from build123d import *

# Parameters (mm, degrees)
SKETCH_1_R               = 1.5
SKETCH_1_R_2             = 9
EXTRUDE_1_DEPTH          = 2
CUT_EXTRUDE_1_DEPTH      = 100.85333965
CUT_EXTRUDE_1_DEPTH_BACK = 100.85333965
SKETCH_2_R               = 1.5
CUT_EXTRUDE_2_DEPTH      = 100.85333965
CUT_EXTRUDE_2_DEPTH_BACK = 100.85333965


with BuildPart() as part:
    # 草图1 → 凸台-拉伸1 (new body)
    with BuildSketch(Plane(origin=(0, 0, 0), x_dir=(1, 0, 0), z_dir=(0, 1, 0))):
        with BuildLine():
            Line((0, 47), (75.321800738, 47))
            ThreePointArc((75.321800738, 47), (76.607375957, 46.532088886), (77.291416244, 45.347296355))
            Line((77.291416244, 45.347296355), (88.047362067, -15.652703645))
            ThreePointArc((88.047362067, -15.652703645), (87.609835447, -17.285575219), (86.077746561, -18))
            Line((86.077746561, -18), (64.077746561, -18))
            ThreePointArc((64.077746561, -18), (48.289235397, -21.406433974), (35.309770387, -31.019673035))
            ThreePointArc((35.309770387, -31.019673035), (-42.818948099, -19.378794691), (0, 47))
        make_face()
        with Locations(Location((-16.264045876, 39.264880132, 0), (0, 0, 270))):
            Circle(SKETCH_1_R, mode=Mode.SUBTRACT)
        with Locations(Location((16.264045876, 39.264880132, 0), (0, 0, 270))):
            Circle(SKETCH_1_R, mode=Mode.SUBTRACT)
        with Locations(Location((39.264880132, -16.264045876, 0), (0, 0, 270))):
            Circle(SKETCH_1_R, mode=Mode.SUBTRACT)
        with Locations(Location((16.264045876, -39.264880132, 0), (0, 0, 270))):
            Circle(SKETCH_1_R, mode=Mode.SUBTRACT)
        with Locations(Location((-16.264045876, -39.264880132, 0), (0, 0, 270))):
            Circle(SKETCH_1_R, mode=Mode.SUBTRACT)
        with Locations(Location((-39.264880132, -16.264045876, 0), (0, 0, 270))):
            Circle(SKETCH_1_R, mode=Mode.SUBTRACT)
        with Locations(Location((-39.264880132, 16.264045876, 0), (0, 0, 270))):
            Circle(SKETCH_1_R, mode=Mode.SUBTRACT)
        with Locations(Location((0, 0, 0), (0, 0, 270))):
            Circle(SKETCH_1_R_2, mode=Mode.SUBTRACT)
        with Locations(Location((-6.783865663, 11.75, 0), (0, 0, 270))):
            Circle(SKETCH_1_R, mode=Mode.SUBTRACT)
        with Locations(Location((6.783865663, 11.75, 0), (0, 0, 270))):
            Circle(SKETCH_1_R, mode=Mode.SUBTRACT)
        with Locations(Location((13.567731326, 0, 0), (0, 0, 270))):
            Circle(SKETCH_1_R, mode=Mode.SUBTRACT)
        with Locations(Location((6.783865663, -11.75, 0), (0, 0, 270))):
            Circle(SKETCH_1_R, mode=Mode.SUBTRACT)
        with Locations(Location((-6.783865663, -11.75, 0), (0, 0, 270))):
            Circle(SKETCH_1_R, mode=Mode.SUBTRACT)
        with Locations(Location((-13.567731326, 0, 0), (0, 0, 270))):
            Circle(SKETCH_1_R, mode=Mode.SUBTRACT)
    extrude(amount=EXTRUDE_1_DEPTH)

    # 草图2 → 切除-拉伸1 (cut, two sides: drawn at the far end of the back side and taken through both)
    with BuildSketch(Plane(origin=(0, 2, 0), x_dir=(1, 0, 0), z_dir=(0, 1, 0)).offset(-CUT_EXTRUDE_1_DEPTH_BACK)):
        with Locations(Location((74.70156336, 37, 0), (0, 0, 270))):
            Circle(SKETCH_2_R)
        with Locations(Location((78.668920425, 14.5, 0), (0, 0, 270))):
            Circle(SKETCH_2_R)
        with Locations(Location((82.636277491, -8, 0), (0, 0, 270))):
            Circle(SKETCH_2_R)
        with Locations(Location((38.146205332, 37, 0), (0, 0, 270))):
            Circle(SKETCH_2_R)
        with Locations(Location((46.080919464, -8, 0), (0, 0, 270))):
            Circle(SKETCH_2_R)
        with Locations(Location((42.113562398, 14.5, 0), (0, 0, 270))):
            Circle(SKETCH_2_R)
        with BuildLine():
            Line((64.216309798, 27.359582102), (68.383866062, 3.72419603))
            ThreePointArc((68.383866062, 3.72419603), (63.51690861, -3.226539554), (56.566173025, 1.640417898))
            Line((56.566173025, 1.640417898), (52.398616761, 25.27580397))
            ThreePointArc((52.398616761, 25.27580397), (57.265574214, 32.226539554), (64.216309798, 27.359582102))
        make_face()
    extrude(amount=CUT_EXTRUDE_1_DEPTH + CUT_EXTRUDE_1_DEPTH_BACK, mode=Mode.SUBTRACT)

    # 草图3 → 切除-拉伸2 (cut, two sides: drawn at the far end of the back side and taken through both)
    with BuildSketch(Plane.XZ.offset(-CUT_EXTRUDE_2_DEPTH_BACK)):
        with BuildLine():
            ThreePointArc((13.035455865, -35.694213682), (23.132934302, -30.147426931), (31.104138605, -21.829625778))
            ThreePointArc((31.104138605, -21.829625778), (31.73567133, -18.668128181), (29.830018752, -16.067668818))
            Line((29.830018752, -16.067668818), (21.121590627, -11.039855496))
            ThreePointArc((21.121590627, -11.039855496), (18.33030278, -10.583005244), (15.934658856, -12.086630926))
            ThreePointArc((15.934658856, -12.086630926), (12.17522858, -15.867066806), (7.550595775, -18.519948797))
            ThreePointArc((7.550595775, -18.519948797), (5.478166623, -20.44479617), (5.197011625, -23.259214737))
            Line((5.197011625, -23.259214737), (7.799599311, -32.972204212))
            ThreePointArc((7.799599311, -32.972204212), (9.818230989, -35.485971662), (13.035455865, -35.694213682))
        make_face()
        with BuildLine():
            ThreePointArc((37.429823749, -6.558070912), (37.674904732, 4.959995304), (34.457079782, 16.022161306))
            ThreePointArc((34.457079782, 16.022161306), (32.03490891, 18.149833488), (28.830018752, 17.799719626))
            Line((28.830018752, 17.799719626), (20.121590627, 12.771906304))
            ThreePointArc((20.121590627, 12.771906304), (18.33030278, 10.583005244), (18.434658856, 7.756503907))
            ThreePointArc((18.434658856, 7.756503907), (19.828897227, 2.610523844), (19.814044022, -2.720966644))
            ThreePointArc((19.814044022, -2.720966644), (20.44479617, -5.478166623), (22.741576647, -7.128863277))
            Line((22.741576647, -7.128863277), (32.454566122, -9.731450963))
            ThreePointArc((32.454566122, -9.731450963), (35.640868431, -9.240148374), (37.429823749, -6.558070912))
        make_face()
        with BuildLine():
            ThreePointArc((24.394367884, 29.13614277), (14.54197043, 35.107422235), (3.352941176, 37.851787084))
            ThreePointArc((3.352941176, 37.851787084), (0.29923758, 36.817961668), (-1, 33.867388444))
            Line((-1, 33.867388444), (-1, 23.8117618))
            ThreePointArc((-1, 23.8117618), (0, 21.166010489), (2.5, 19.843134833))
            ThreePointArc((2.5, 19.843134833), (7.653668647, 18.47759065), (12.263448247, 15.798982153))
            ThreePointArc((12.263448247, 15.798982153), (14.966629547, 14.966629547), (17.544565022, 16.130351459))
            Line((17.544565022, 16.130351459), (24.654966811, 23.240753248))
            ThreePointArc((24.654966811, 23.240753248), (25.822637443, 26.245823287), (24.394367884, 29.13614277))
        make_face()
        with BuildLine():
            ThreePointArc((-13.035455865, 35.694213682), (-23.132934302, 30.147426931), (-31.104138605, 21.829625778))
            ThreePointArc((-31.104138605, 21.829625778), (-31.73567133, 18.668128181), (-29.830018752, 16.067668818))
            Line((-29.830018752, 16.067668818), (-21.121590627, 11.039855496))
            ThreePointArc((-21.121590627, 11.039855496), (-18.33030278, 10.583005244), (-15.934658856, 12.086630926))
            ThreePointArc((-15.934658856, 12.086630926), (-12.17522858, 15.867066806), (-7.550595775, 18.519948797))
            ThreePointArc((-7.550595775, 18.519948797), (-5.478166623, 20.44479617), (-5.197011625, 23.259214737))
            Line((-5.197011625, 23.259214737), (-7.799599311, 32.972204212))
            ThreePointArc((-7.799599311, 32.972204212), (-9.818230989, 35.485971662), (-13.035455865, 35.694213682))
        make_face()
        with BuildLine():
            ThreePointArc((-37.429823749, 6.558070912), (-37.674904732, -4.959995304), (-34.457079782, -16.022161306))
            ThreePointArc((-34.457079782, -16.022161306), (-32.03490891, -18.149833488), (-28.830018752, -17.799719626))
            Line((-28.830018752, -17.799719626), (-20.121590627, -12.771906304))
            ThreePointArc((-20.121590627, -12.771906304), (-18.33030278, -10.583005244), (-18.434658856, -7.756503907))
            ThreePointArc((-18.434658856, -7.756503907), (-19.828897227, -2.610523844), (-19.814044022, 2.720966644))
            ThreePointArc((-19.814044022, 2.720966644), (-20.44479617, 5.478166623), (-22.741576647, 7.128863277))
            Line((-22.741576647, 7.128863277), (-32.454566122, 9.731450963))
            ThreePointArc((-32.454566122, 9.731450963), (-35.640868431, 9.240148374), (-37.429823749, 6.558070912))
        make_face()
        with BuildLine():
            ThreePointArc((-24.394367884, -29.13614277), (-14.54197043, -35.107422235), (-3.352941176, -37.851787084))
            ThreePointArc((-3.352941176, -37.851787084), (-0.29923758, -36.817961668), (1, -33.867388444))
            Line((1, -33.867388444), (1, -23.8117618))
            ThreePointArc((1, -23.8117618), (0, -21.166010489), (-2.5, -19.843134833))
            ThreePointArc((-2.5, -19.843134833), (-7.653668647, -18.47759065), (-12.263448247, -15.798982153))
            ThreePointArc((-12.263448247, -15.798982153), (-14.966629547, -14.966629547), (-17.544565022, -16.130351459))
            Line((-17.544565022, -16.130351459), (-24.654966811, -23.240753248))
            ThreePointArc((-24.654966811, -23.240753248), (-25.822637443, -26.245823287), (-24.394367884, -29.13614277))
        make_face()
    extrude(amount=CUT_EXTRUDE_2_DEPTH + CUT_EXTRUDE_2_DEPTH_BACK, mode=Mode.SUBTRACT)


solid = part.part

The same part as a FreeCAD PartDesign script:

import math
import FreeCAD as App
import Part
import Sketcher

V = App.Vector
Q = App.Units.Quantity

doc = App.newDocument("Part")
body = doc.addObject("PartDesign::Body", "Body")

# Sketch on XZ plane
sketch1 = doc.addObject("Sketcher::SketchObject", "Sketch")
body.addObject(sketch1)
sketch1.AttachmentSupport = (doc.XZ_Plane, [""])
sketch1.MapMode = "FlatFace"
sketch1.addGeometry(Part.LineSegment(V(75.321801, -47, 0), V(0, -47, 0)), False)
sketch1.addGeometry(Part.ArcOfCircle(Part.Circle(V(0, 0, 0), V(0, 0, 1), 47), math.radians(41.299342), math.radians(270)), False)
sketch1.addGeometry(Part.ArcOfCircle(Part.Circle(V(64.077747, 56.292372, 0), V(0, 0, 1), 38.292372), math.radians(-138.700658), math.radians(-90)), False)
sketch1.addGeometry(Part.LineSegment(V(64.077747, 18, 0), V(86.077747, 18, 0)), False)
sketch1.addGeometry(Part.ArcOfCircle(Part.Circle(V(86.077747, 16, 0), V(0, 0, 1), 2), math.radians(-10), math.radians(90)), False)
sketch1.addGeometry(Part.LineSegment(V(88.047362, 15.652704, 0), V(77.291416, -45.347296, 0)), False)
sketch1.addGeometry(Part.ArcOfCircle(Part.Circle(V(75.321801, -45, 0), V(0, 0, 1), 2), math.radians(-90), math.radians(-10)), False)
sketch1.addGeometry(Part.Circle(V(16.264046, 39.26488, 0), V(0, 0, 1), 1.5), False)
sketch1.addGeometry(Part.Circle(V(39.26488, 16.264046, 0), V(0, 0, 1), 1.5), False)
sketch1.addGeometry(Part.Circle(V(6.783866, 11.75, 0), V(0, 0, 1), 1.5), False)
sketch1.addGeometry(Part.Circle(V(-16.264046, 39.26488, 0), V(0, 0, 1), 1.5), False)
sketch1.addGeometry(Part.Circle(V(-6.783866, 11.75, 0), V(0, 0, 1), 1.5), False)
sketch1.addGeometry(Part.Circle(V(-39.26488, 16.264046, 0), V(0, 0, 1), 1.5), False)
sketch1.addGeometry(Part.Circle(V(13.567731, 0, 0), V(0, 0, 1), 1.5), False)
sketch1.addGeometry(Part.Circle(V(6.783866, -11.75, 0), V(0, 0, 1), 1.5), False)
sketch1.addGeometry(Part.Circle(V(16.264046, -39.26488, 0), V(0, 0, 1), 1.5), False)
sketch1.addGeometry(Part.Circle(V(0, 0, 0), V(0, 0, 1), 9), False)
sketch1.addGeometry(Part.Circle(V(-13.567731, 0, 0), V(0, 0, 1), 1.5), False)
sketch1.addGeometry(Part.Circle(V(-6.783866, -11.75, 0), V(0, 0, 1), 1.5), False)
sketch1.addGeometry(Part.Circle(V(-39.26488, -16.264046, 0), V(0, 0, 1), 1.5), False)
sketch1.addGeometry(Part.Circle(V(-16.264046, -39.26488, 0), V(0, 0, 1), 1.5), False)
sketch1.addConstraint(Sketcher.Constraint("Tangent", 0, 2, 1, 2))
sketch1.addConstraint(Sketcher.Constraint("Tangent", 1, 1, 2, 1))
sketch1.addConstraint(Sketcher.Constraint("Tangent", 2, 2, 3, 1))
sketch1.addConstraint(Sketcher.Constraint("Tangent", 3, 2, 4, 2))
sketch1.addConstraint(Sketcher.Constraint("Tangent", 4, 1, 5, 1))
sketch1.addConstraint(Sketcher.Constraint("Tangent", 5, 2, 6, 2))
sketch1.addConstraint(Sketcher.Constraint("Tangent", 6, 1, 0, 1))
sketch1.addConstraint(Sketcher.Constraint("Horizontal", 0))
sketch1.addConstraint(Sketcher.Constraint("Horizontal", 3))
sketch1.addConstraint(Sketcher.Constraint("Coincident", 1, 3, -1, 1))
sketch1.addConstraint(Sketcher.Constraint("Coincident", 16, 3, -1, 1))
sketch1.addConstraint(Sketcher.Constraint("Equal", 4, 6))
sketch1.addConstraint(Sketcher.Constraint("Equal", 7, 8))
sketch1.addConstraint(Sketcher.Constraint("Equal", 8, 9))
sketch1.addConstraint(Sketcher.Constraint("Equal", 9, 10))
sketch1.addConstraint(Sketcher.Constraint("Equal", 10, 11))
sketch1.addConstraint(Sketcher.Constraint("Equal", 11, 12))
sketch1.addConstraint(Sketcher.Constraint("Equal", 12, 13))
sketch1.addConstraint(Sketcher.Constraint("Equal", 13, 14))
sketch1.addConstraint(Sketcher.Constraint("Equal", 14, 15))
sketch1.addConstraint(Sketcher.Constraint("Equal", 15, 17))
sketch1.addConstraint(Sketcher.Constraint("Equal", 17, 18))
sketch1.addConstraint(Sketcher.Constraint("Equal", 18, 19))
sketch1.addConstraint(Sketcher.Constraint("Equal", 19, 20))
sketch1.addConstraint(Sketcher.Constraint("Symmetric", 11, 3, 14, 3, -1, 1))
sketch1.addConstraint(Sketcher.Constraint("Symmetric", 10, 3, 15, 3, -1, 1))
sketch1.addConstraint(Sketcher.Constraint("Symmetric", 13, 3, 17, 3, -1, 1))
sketch1.addConstraint(Sketcher.Constraint("Symmetric", 9, 3, 18, 3, -1, 1))
sketch1.addConstraint(Sketcher.Constraint("Symmetric", 8, 3, 19, 3, -1, 1))
sketch1.addConstraint(Sketcher.Constraint("Symmetric", 7, 3, 20, 3, -1, 1))
sketch1.addConstraint(Sketcher.Constraint("Symmetric", 7, 3, 10, 3, -2))
sketch1.addConstraint(Sketcher.Constraint("Symmetric", 9, 3, 11, 3, -2))
sketch1.addConstraint(Sketcher.Constraint("Symmetric", 8, 3, 12, 3, -2))
sketch1.addConstraint(Sketcher.Constraint("PointOnObject", 13, 3, -1))
sketch1.addConstraint(Sketcher.Constraint("Diameter", 7, 3.0))
sketch1.addConstraint(Sketcher.Constraint("Diameter", 16, 18.0))
sketch1.addConstraint(Sketcher.Constraint("Radius", 1, 47.0))
sketch1.addConstraint(Sketcher.Constraint("Radius", 4, 2.0))
sketch1.addConstraint(Sketcher.Constraint("DistanceX", 3, 1, 3, 2, 22.0))
sketch1.addConstraint(Sketcher.Constraint("Angle", 5, Q("-100 deg")))
sketch1.addConstraint(Sketcher.Constraint("DistanceY", -1, 1, 4, 3, 16.0))
sketch1.addConstraint(Sketcher.Constraint("DistanceY", 14, 3, 9, 3, 23.5))
sketch1.addConstraint(Sketcher.Constraint("DistanceX", 0, 2, 0, 1, 75.321801))
sketch1.addConstraint(Sketcher.Constraint("DistanceX", 7, 3, 2, 3, 47.813701))
sketch1.addConstraint(Sketcher.Constraint("DistanceY", -1, 1, 7, 3, 39.26488))
sketch1.addConstraint(Sketcher.Constraint("DistanceX", -1, 1, 8, 3, 39.26488))
sketch1.addConstraint(Sketcher.Constraint("DistanceX", -1, 1, 13, 3, 13.567731))
sketch1.addConstraint(Sketcher.Constraint("DistanceX", 9, 3, 7, 3, 9.48018))
sketch1.addConstraint(Sketcher.Constraint("DistanceY", 19, 3, 12, 3, 32.528092))
pad1 = doc.addObject("PartDesign::Pad", "Pad")
body.addObject(pad1)
pad1.Profile = sketch1
pad1.Length = 2
pad1.Reversed = True

# Sketch on XZ plane
sketch2 = doc.addObject("Sketcher::SketchObject", "Sketch001")
body.addObject(sketch2)
sketch2.AttachmentSupport = (doc.XZ_Plane, [""])
sketch2.MapMode = "FlatFace"
sketch2.AttachmentOffset = App.Placement(V(0, 0, -2), App.Rotation())
sketch2.addGeometry(Part.Circle(V(74.701563, -37, 0), V(0, 0, 1), 1.5), False)
sketch2.addGeometry(Part.Circle(V(78.66892, -14.5, 0), V(0, 0, 1), 1.5), False)
sketch2.addGeometry(Part.Circle(V(82.636277, 8, 0), V(0, 0, 1), 1.5), False)
sketch2.addGeometry(Part.Circle(V(38.146205, -37, 0), V(0, 0, 1), 1.5), False)
sketch2.addGeometry(Part.Circle(V(46.080919, 8, 0), V(0, 0, 1), 1.5), False)
sketch2.addGeometry(Part.Circle(V(42.113562, -14.5, 0), V(0, 0, 1), 1.5), False)
sketch2.addGeometry(Part.LineSegment(V(68.383866, -3.724196, 0), V(64.21631, -27.359582, 0)), False)
sketch2.addGeometry(Part.ArcOfCircle(Part.Circle(V(58.307463, -26.317693, 0), V(0, 0, 1), 6), math.radians(170), math.radians(350)), False)
sketch2.addGeometry(Part.LineSegment(V(52.398617, -25.275804, 0), V(56.566173, -1.640418, 0)), False)
sketch2.addGeometry(Part.ArcOfCircle(Part.Circle(V(62.47502, -2.682307, 0), V(0, 0, 1), 6), math.radians(-10), math.radians(170)), False)
sketch2.addConstraint(Sketcher.Constraint("Tangent", 6, 2, 7, 2))
sketch2.addConstraint(Sketcher.Constraint("Tangent", 7, 1, 8, 1))
sketch2.addConstraint(Sketcher.Constraint("Tangent", 8, 2, 9, 2))
sketch2.addConstraint(Sketcher.Constraint("Tangent", 9, 1, 6, 1))
sketch2.addConstraint(Sketcher.Constraint("Equal", 0, 1))
sketch2.addConstraint(Sketcher.Constraint("Equal", 1, 2))
sketch2.addConstraint(Sketcher.Constraint("Equal", 2, 3))
sketch2.addConstraint(Sketcher.Constraint("Equal", 3, 4))
sketch2.addConstraint(Sketcher.Constraint("Equal", 4, 5))
sketch2.addConstraint(Sketcher.Constraint("Equal", 7, 9))
sketch2.addConstraint(Sketcher.Constraint("Horizontal", 0, 3, 3, 3))
sketch2.addConstraint(Sketcher.Constraint("Horizontal", 2, 3, 4, 3))
sketch2.addConstraint(Sketcher.Constraint("Horizontal", 1, 3, 5, 3))
sketch2.addConstraint(Sketcher.Constraint("Diameter", 0, 3.0))
sketch2.addConstraint(Sketcher.Constraint("Radius", 7, 6.0))
sketch2.addConstraint(Sketcher.Constraint("Angle", 6, Q("-100 deg")))
sketch2.addConstraint(Sketcher.Constraint("Distance", 6, 24.0))
sketch2.addConstraint(Sketcher.Constraint("DistanceY", 0, 3, -1, 1, 37.0))
sketch2.addConstraint(Sketcher.Constraint("DistanceY", -1, 1, 2, 3, 8.0))
sketch2.addConstraint(Sketcher.Constraint("DistanceY", 1, 3, -1, 1, 14.5))
sketch2.addConstraint(Sketcher.Constraint("DistanceX", 4, 3, 1, 3, 32.588001))
sketch2.addConstraint(Sketcher.Constraint("DistanceX", 5, 3, 0, 3, 32.588001))
sketch2.addConstraint(Sketcher.Constraint("DistanceX", 7, 3, 0, 3, 16.3941))
sketch2.addConstraint(Sketcher.Constraint("DistanceX", 4, 3, 9, 3, 16.3941))
sketch2.addConstraint(Sketcher.Constraint("DistanceX", -1, 1, 1, 3, 78.66892))
sketch2.addConstraint(Sketcher.Constraint("DistanceX", 3, 3, 0, 3, 36.555358))
sketch2.addConstraint(Sketcher.Constraint("DistanceX", 4, 3, 2, 3, 36.555358))
sketch2.addConstraint(Sketcher.Constraint("DistanceY", 7, 3, -1, 1, 26.317693))
pocket1 = doc.addObject("PartDesign::Pocket", "Pocket")
body.addObject(pocket1)
pocket1.Profile = sketch2
pocket1.Type = "ThroughAll"
pocket1.Midplane = True

# Sketch on XZ plane
sketch3 = doc.addObject("Sketcher::SketchObject", "Sketch002")
body.addObject(sketch3)
sketch3.AttachmentSupport = (doc.XZ_Plane, [""])
sketch3.MapMode = "FlatFace"
sketch3.addGeometry(Part.ArcOfCircle(Part.Circle(V(0, 0, 0), V(0, 0, 1), 38), math.radians(-69.937907), math.radians(-35.062093)), False)
sketch3.addGeometry(Part.ArcOfCircle(Part.Circle(V(27.830019, -19.53177, 0), V(0, 0, 1), 4), math.radians(-35.062093), math.radians(60)), False)
sketch3.addGeometry(Part.LineSegment(V(29.830019, -16.067669, 0), V(21.121591, -11.039855, 0)), False)
sketch3.addGeometry(Part.ArcOfCircle(Part.Circle(V(19.121591, -14.503957, 0), V(0, 0, 1), 4), math.radians(60), math.radians(142.819244)), False)
sketch3.addGeometry(Part.ArcOfCircle(Part.Circle(V(0, 0, 0), V(0, 0, 1), 20), math.radians(-67.819244), math.radians(-37.180756)), False)
sketch3.addGeometry(Part.ArcOfCircle(Part.Circle(V(9.060715, -22.223939, 0), V(0, 0, 1), 4), math.radians(112.180756), math.radians(195)), False)
sketch3.addGeometry(Part.LineSegment(V(5.197012, -23.259215, 0), V(7.799599, -32.972204, 0)), False)
sketch3.addGeometry(Part.ArcOfCircle(Part.Circle(V(11.663303, -31.936928, 0), V(0, 0, 1), 4), math.radians(-165), math.radians(-69.937907)), False)
sketch3.addGeometry(Part.ArcOfCircle(Part.Circle(V(0, 0, 0), V(0, 0, 1), 38), math.radians(-9.937907), math.radians(24.937907)), False)
sketch3.addGeometry(Part.ArcOfCircle(Part.Circle(V(30.830019, 14.335618, 0), V(0, 0, 1), 4), math.radians(24.937907), math.radians(120)), False)
sketch3.addGeometry(Part.LineSegment(V(28.830019, 17.79972, 0), V(20.121591, 12.771906, 0)), False)
sketch3.addGeometry(Part.ArcOfCircle(Part.Circle(V(22.121591, 9.307805, 0), V(0, 0, 1), 4), math.radians(120), math.radians(202.819244)), False)
sketch3.addGeometry(Part.ArcOfCircle(Part.Circle(V(0, 0, 0), V(0, 0, 1), 20), math.radians(-7.819244), math.radians(22.819244)), False)
sketch3.addGeometry(Part.ArcOfCircle(Part.Circle(V(23.776853, -3.26516, 0), V(0, 0, 1), 4), math.radians(172.180756), math.radians(255)), False)
sketch3.addGeometry(Part.LineSegment(V(22.741577, -7.128863, 0), V(32.454566, -9.731451, 0)), False)
sketch3.addGeometry(Part.ArcOfCircle(Part.Circle(V(33.489842, -5.867748, 0), V(0, 0, 1), 4), math.radians(-105), math.radians(-9.937907)), False)
sketch3.addGeometry(Part.ArcOfCircle(Part.Circle(V(0, 0, 0), V(0, 0, 1), 38), math.radians(50.062093), math.radians(84.937907)), False)
sketch3.addGeometry(Part.ArcOfCircle(Part.Circle(V(3, 33.867388, 0), V(0, 0, 1), 4), math.radians(84.937907), math.radians(180)), False)
sketch3.addGeometry(Part.LineSegment(V(-1, 33.867388, 0), V(-1, 23.811762, 0)), False)
sketch3.addGeometry(Part.ArcOfCircle(Part.Circle(V(3, 23.811762, 0), V(0, 0, 1), 4), math.radians(180), math.radians(262.819244)), False)
sketch3.addGeometry(Part.ArcOfCircle(Part.Circle(V(0, 0, 0), V(0, 0, 1), 20), math.radians(52.180756), math.radians(82.819244)), False)
sketch3.addGeometry(Part.ArcOfCircle(Part.Circle(V(14.716138, 18.958779, 0), V(0, 0, 1), 4), math.radians(-127.819244), math.radians(-45)), False)
sketch3.addGeometry(Part.LineSegment(V(17.544565, 16.130351, 0), V(24.654967, 23.240753, 0)), False)
sketch3.addGeometry(Part.ArcOfCircle(Part.Circle(V(21.82654, 26.06918, 0), V(0, 0, 1), 4), math.radians(-45), math.radians(50.062093)), False)
sketch3.addGeometry(Part.ArcOfCircle(Part.Circle(V(0, 0, 0), V(0, 0, 1), 38), math.radians(110.062093), math.radians(144.937907)), False)
sketch3.addGeometry(Part.ArcOfCircle(Part.Circle(V(-27.830019, 19.53177, 0), V(0, 0, 1), 4), math.radians(144.937907), math.radians(240)), False)
sketch3.addGeometry(Part.LineSegment(V(-29.830019, 16.067669, 0), V(-21.121591, 11.039855, 0)), False)
sketch3.addGeometry(Part.ArcOfCircle(Part.Circle(V(-19.121591, 14.503957, 0), V(0, 0, 1), 4), math.radians(-120), math.radians(-37.180756)), False)
sketch3.addGeometry(Part.ArcOfCircle(Part.Circle(V(0, 0, 0), V(0, 0, 1), 20), math.radians(112.180756), math.radians(142.819244)), False)
sketch3.addGeometry(Part.ArcOfCircle(Part.Circle(V(-9.060715, 22.223939, 0), V(0, 0, 1), 4), math.radians(-67.819244), math.radians(15)), False)
sketch3.addGeometry(Part.LineSegment(V(-5.197012, 23.259215, 0), V(-7.799599, 32.972204, 0)), False)
sketch3.addGeometry(Part.ArcOfCircle(Part.Circle(V(-11.663303, 31.936928, 0), V(0, 0, 1), 4), math.radians(15), math.radians(110.062093)), False)
sketch3.addGeometry(Part.ArcOfCircle(Part.Circle(V(0, 0, 0), V(0, 0, 1), 38), math.radians(170.062093), math.radians(204.937907)), False)
sketch3.addGeometry(Part.ArcOfCircle(Part.Circle(V(-30.830019, -14.335618, 0), V(0, 0, 1), 4), math.radians(-155.062093), math.radians(-60)), False)
sketch3.addGeometry(Part.LineSegment(V(-28.830019, -17.79972, 0), V(-20.121591, -12.771906, 0)), False)
sketch3.addGeometry(Part.ArcOfCircle(Part.Circle(V(-22.121591, -9.307805, 0), V(0, 0, 1), 4), math.radians(-60), math.radians(22.819244)), False)
sketch3.addGeometry(Part.ArcOfCircle(Part.Circle(V(0, 0, 0), V(0, 0, 1), 20), math.radians(172.180756), math.radians(202.819244)), False)
sketch3.addGeometry(Part.ArcOfCircle(Part.Circle(V(-23.776853, 3.26516, 0), V(0, 0, 1), 4), math.radians(-7.819244), math.radians(75)), False)
sketch3.addGeometry(Part.LineSegment(V(-22.741577, 7.128863, 0), V(-32.454566, 9.731451, 0)), False)
sketch3.addGeometry(Part.ArcOfCircle(Part.Circle(V(-33.489842, 5.867748, 0), V(0, 0, 1), 4), math.radians(75), math.radians(170.062093)), False)
sketch3.addGeometry(Part.ArcOfCircle(Part.Circle(V(0, 0, 0), V(0, 0, 1), 38), math.radians(-129.937907), math.radians(-95.062093)), False)
sketch3.addGeometry(Part.ArcOfCircle(Part.Circle(V(-3, -33.867388, 0), V(0, 0, 1), 4), math.radians(-95.062093), math.radians(0)), False)
sketch3.addGeometry(Part.LineSegment(V(1, -33.867388, 0), V(1, -23.811762, 0)), False)
sketch3.addGeometry(Part.ArcOfCircle(Part.Circle(V(-3, -23.811762, 0), V(0, 0, 1), 4), math.radians(0), math.radians(82.819244)), False)
sketch3.addGeometry(Part.ArcOfCircle(Part.Circle(V(0, 0, 0), V(0, 0, 1), 20), math.radians(-127.819244), math.radians(-97.180756)), False)
sketch3.addGeometry(Part.ArcOfCircle(Part.Circle(V(-14.716138, -18.958779, 0), V(0, 0, 1), 4), math.radians(52.180756), math.radians(135)), False)
sketch3.addGeometry(Part.LineSegment(V(-17.544565, -16.130351, 0), V(-24.654967, -23.240753, 0)), False)
sketch3.addGeometry(Part.ArcOfCircle(Part.Circle(V(-21.82654, -26.06918, 0), V(0, 0, 1), 4), math.radians(135), math.radians(230.062093)), False)
sketch3.addConstraint(Sketcher.Constraint("Tangent", 0, 2, 1, 1))
sketch3.addConstraint(Sketcher.Constraint("Tangent", 1, 2, 2, 1))
sketch3.addConstraint(Sketcher.Constraint("Tangent", 2, 2, 3, 1))
sketch3.addConstraint(Sketcher.Constraint("Tangent", 3, 2, 4, 2))
sketch3.addConstraint(Sketcher.Constraint("Tangent", 4, 1, 5, 1))
sketch3.addConstraint(Sketcher.Constraint("Tangent", 5, 2, 6, 1))
sketch3.addConstraint(Sketcher.Constraint("Tangent", 6, 2, 7, 1))
sketch3.addConstraint(Sketcher.Constraint("Tangent", 7, 2, 0, 1))
sketch3.addConstraint(Sketcher.Constraint("Tangent", 8, 2, 9, 1))
sketch3.addConstraint(Sketcher.Constraint("Tangent", 9, 2, 10, 1))
sketch3.addConstraint(Sketcher.Constraint("Tangent", 10, 2, 11, 1))
sketch3.addConstraint(Sketcher.Constraint("Tangent", 11, 2, 12, 2))
sketch3.addConstraint(Sketcher.Constraint("Tangent", 12, 1, 13, 1))
sketch3.addConstraint(Sketcher.Constraint("Tangent", 13, 2, 14, 1))
sketch3.addConstraint(Sketcher.Constraint("Tangent", 14, 2, 15, 1))
sketch3.addConstraint(Sketcher.Constraint("Tangent", 15, 2, 8, 1))
sketch3.addConstraint(Sketcher.Constraint("Tangent", 16, 2, 17, 1))
sketch3.addConstraint(Sketcher.Constraint("Tangent", 17, 2, 18, 1))
sketch3.addConstraint(Sketcher.Constraint("Tangent", 18, 2, 19, 1))
sketch3.addConstraint(Sketcher.Constraint("Tangent", 19, 2, 20, 2))
sketch3.addConstraint(Sketcher.Constraint("Tangent", 20, 1, 21, 1))
sketch3.addConstraint(Sketcher.Constraint("Tangent", 21, 2, 22, 1))
sketch3.addConstraint(Sketcher.Constraint("Tangent", 22, 2, 23, 1))
sketch3.addConstraint(Sketcher.Constraint("Tangent", 23, 2, 16, 1))
sketch3.addConstraint(Sketcher.Constraint("Tangent", 24, 2, 25, 1))
sketch3.addConstraint(Sketcher.Constraint("Tangent", 25, 2, 26, 1))
sketch3.addConstraint(Sketcher.Constraint("Tangent", 26, 2, 27, 1))
sketch3.addConstraint(Sketcher.Constraint("Tangent", 27, 2, 28, 2))
sketch3.addConstraint(Sketcher.Constraint("Tangent", 28, 1, 29, 1))
sketch3.addConstraint(Sketcher.Constraint("Tangent", 29, 2, 30, 1))
sketch3.addConstraint(Sketcher.Constraint("Tangent", 30, 2, 31, 1))
sketch3.addConstraint(Sketcher.Constraint("Tangent", 31, 2, 24, 1))
sketch3.addConstraint(Sketcher.Constraint("Tangent", 32, 2, 33, 1))
sketch3.addConstraint(Sketcher.Constraint("Tangent", 33, 2, 34, 1))
sketch3.addConstraint(Sketcher.Constraint("Tangent", 34, 2, 35, 1))
sketch3.addConstraint(Sketcher.Constraint("Tangent", 35, 2, 36, 2))
sketch3.addConstraint(Sketcher.Constraint("Tangent", 36, 1, 37, 1))
sketch3.addConstraint(Sketcher.Constraint("Tangent", 37, 2, 38, 1))
sketch3.addConstraint(Sketcher.Constraint("Tangent", 38, 2, 39, 1))
sketch3.addConstraint(Sketcher.Constraint("Tangent", 39, 2, 32, 1))
sketch3.addConstraint(Sketcher.Constraint("Tangent", 40, 2, 41, 1))
sketch3.addConstraint(Sketcher.Constraint("Tangent", 41, 2, 42, 1))
sketch3.addConstraint(Sketcher.Constraint("Tangent", 42, 2, 43, 1))
sketch3.addConstraint(Sketcher.Constraint("Tangent", 43, 2, 44, 2))
sketch3.addConstraint(Sketcher.Constraint("Tangent", 44, 1, 45, 1))
sketch3.addConstraint(Sketcher.Constraint("Tangent", 45, 2, 46, 1))
sketch3.addConstraint(Sketcher.Constraint("Tangent", 46, 2, 47, 1))
sketch3.addConstraint(Sketcher.Constraint("Tangent", 47, 2, 40, 1))
sketch3.addConstraint(Sketcher.Constraint("Vertical", 18))
sketch3.addConstraint(Sketcher.Constraint("Vertical", 42))
sketch3.addConstraint(Sketcher.Constraint("Coincident", 0, 3, -1, 1))
sketch3.addConstraint(Sketcher.Constraint("Coincident", 4, 3, -1, 1))
sketch3.addConstraint(Sketcher.Constraint("Coincident", 8, 3, -1, 1))
sketch3.addConstraint(Sketcher.Constraint("Coincident", 12, 3, -1, 1))
sketch3.addConstraint(Sketcher.Constraint("Coincident", 16, 3, -1, 1))
sketch3.addConstraint(Sketcher.Constraint("Coincident", 20, 3, -1, 1))
sketch3.addConstraint(Sketcher.Constraint("Coincident", 24, 3, -1, 1))
sketch3.addConstraint(Sketcher.Constraint("Coincident", 28, 3, -1, 1))
sketch3.addConstraint(Sketcher.Constraint("Coincident", 32, 3, -1, 1))
sketch3.addConstraint(Sketcher.Constraint("Coincident", 36, 3, -1, 1))
sketch3.addConstraint(Sketcher.Constraint("Coincident", 40, 3, -1, 1))
sketch3.addConstraint(Sketcher.Constraint("Coincident", 44, 3, -1, 1))
sketch3.addConstraint(Sketcher.Constraint("Equal", 1, 3))
sketch3.addConstraint(Sketcher.Constraint("Equal", 3, 5))
sketch3.addConstraint(Sketcher.Constraint("Equal", 5, 7))
sketch3.addConstraint(Sketcher.Constraint("Equal", 0, 8))
sketch3.addConstraint(Sketcher.Constraint("Equal", 7, 9))
sketch3.addConstraint(Sketcher.Constraint("Equal", 9, 11))
sketch3.addConstraint(Sketcher.Constraint("Equal", 4, 12))
sketch3.addConstraint(Sketcher.Constraint("Equal", 11, 13))
sketch3.addConstraint(Sketcher.Constraint("Equal", 13, 15))
sketch3.addConstraint(Sketcher.Constraint("Equal", 8, 16))
sketch3.addConstraint(Sketcher.Constraint("Equal", 15, 17))
sketch3.addConstraint(Sketcher.Constraint("Equal", 17, 19))
sketch3.addConstraint(Sketcher.Constraint("Equal", 12, 20))
sketch3.addConstraint(Sketcher.Constraint("Equal", 19, 21))
sketch3.addConstraint(Sketcher.Constraint("Equal", 21, 23))
sketch3.addConstraint(Sketcher.Constraint("Equal", 16, 24))
sketch3.addConstraint(Sketcher.Constraint("Equal", 23, 25))
sketch3.addConstraint(Sketcher.Constraint("Equal", 25, 27))
sketch3.addConstraint(Sketcher.Constraint("Equal", 20, 28))
sketch3.addConstraint(Sketcher.Constraint("Equal", 27, 29))
sketch3.addConstraint(Sketcher.Constraint("Equal", 29, 31))
sketch3.addConstraint(Sketcher.Constraint("Equal", 24, 32))
sketch3.addConstraint(Sketcher.Constraint("Equal", 31, 33))
sketch3.addConstraint(Sketcher.Constraint("Equal", 33, 35))
sketch3.addConstraint(Sketcher.Constraint("Equal", 28, 36))
sketch3.addConstraint(Sketcher.Constraint("Equal", 35, 37))
sketch3.addConstraint(Sketcher.Constraint("Equal", 37, 39))
sketch3.addConstraint(Sketcher.Constraint("Equal", 32, 40))
sketch3.addConstraint(Sketcher.Constraint("Equal", 39, 41))
sketch3.addConstraint(Sketcher.Constraint("Equal", 41, 43))
sketch3.addConstraint(Sketcher.Constraint("Equal", 36, 44))
sketch3.addConstraint(Sketcher.Constraint("Equal", 43, 45))
sketch3.addConstraint(Sketcher.Constraint("Equal", 45, 47))
sketch3.addConstraint(Sketcher.Constraint("Symmetric", 1, 2, 25, 2, -1, 1))
sketch3.addConstraint(Sketcher.Constraint("Symmetric", 5, 2, 29, 2, -1, 1))
sketch3.addConstraint(Sketcher.Constraint("Symmetric", 9, 2, 33, 2, -1, 1))
sketch3.addConstraint(Sketcher.Constraint("Symmetric", 13, 2, 37, 2, -1, 1))
sketch3.addConstraint(Sketcher.Constraint("Symmetric", 21, 2, 45, 2, -1, 1))
sketch3.addConstraint(Sketcher.Constraint("Equal", 18, 42))
sketch3.addConstraint(Sketcher.Constraint("Equal", 2, 6))
sketch3.addConstraint(Sketcher.Constraint("Equal", 6, 10))
sketch3.addConstraint(Sketcher.Constraint("Equal", 10, 14))
sketch3.addConstraint(Sketcher.Constraint("Equal", 14, 22))
sketch3.addConstraint(Sketcher.Constraint("Radius", 0, 38.0))
sketch3.addConstraint(Sketcher.Constraint("Radius", 1, 4.0))
sketch3.addConstraint(Sketcher.Constraint("Radius", 4, 20.0))
sketch3.addConstraint(Sketcher.Constraint("Angle", 2, Q("150 deg")))
sketch3.addConstraint(Sketcher.Constraint("Angle", 6, Q("-75 deg")))
sketch3.addConstraint(Sketcher.Constraint("Angle", 10, Q("-150 deg")))
sketch3.addConstraint(Sketcher.Constraint("Angle", 14, Q("-15 deg")))
sketch3.addConstraint(Sketcher.Constraint("Angle", 22, Q("45 deg")))
sketch3.addConstraint(Sketcher.Constraint("DistanceX", -1, 1, 17, 3, 3.0))
sketch3.addConstraint(Sketcher.Constraint("DistanceX", -1, 1, 6, 2, 7.799599))
pocket2 = doc.addObject("PartDesign::Pocket", "Pocket001")
body.addObject(pocket2)
pocket2.Profile = sketch3
pocket2.Type = "ThroughAll"
pocket2.Midplane = True

doc.recompute()
